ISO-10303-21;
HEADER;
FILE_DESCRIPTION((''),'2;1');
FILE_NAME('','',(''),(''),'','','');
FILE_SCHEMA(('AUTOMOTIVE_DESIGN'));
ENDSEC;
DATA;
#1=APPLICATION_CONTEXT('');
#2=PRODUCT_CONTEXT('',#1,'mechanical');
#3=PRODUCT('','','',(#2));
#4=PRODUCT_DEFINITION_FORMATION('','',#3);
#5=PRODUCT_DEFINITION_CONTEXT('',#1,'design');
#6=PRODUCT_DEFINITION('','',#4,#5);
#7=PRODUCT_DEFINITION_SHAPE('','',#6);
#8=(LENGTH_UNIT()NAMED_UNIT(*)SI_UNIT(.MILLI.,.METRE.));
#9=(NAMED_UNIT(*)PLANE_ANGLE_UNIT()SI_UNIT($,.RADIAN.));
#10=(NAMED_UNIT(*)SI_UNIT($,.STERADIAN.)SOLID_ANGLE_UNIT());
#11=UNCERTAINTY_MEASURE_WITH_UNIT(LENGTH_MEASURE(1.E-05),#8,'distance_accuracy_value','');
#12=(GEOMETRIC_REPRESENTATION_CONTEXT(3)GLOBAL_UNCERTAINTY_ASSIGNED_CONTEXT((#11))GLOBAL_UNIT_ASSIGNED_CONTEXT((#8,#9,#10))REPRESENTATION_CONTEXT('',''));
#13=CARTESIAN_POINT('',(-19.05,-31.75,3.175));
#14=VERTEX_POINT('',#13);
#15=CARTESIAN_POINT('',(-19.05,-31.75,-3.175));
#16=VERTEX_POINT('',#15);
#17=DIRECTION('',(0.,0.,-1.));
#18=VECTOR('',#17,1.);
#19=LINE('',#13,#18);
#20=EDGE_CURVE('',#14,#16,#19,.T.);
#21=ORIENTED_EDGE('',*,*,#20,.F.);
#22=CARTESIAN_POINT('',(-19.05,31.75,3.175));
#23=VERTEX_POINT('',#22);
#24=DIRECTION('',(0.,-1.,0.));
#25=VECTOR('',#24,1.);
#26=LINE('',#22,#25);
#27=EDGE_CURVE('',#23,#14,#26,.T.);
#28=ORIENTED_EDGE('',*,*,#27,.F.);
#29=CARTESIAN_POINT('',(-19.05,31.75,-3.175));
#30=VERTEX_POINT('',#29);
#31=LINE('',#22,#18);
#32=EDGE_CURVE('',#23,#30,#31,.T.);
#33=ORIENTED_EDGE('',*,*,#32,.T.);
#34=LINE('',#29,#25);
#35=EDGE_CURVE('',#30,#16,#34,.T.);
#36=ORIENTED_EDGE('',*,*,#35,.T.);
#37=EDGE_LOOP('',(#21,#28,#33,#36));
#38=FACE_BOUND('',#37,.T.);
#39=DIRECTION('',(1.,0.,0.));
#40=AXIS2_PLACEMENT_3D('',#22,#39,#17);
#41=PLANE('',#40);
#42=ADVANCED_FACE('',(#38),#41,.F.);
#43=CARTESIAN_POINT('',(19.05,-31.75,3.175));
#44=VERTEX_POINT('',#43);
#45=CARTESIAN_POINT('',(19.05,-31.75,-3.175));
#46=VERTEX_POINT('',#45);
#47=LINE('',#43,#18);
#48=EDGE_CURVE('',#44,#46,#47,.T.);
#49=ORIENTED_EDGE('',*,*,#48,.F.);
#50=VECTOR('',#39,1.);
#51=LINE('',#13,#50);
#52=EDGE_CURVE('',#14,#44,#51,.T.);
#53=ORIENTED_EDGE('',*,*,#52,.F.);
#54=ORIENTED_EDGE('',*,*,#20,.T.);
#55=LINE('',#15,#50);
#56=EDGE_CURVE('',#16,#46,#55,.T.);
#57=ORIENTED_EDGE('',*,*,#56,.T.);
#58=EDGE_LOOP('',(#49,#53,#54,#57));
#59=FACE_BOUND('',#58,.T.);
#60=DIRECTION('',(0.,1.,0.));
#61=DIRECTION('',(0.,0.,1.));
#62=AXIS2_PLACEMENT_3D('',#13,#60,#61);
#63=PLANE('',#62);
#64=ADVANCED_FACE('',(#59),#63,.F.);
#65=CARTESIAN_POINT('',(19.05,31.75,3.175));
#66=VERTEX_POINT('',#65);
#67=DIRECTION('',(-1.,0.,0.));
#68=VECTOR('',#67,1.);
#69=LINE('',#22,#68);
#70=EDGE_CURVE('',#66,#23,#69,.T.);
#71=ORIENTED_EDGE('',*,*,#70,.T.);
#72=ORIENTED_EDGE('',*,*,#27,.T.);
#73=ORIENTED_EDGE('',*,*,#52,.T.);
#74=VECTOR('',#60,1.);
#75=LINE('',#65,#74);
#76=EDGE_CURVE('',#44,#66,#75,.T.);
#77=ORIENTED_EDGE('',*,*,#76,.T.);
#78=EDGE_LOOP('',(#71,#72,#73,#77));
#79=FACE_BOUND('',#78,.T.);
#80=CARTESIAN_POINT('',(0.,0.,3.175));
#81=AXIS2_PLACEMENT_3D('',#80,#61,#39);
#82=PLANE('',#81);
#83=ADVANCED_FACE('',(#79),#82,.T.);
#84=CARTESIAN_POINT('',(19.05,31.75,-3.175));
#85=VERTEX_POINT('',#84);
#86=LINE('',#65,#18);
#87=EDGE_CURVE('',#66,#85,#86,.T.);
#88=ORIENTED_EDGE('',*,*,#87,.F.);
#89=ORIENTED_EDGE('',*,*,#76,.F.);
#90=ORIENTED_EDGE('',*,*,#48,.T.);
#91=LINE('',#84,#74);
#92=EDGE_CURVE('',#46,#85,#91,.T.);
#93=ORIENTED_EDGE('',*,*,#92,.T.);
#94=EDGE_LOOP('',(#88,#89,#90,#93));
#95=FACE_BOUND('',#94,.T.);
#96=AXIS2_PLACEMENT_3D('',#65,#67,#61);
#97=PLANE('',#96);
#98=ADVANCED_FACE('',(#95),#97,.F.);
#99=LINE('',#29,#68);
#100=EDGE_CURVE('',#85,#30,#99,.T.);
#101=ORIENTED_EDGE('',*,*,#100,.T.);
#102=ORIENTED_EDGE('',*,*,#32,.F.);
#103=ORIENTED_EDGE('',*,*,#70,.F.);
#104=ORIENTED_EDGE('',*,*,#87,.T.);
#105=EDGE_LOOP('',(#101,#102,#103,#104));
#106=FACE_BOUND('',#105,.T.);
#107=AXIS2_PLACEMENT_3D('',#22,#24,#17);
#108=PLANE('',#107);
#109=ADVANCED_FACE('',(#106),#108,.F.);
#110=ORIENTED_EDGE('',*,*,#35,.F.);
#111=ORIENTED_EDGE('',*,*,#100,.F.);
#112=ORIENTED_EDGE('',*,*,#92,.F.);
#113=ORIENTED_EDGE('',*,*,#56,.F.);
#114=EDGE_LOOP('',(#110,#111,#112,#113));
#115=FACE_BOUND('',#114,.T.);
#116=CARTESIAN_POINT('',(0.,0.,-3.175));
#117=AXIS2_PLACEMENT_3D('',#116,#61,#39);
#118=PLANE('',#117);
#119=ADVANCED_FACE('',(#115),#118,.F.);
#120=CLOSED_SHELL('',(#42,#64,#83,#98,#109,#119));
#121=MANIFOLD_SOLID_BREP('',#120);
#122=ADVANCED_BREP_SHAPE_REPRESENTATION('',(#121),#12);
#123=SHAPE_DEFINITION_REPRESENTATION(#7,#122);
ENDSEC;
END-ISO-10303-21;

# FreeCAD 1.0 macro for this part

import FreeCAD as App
import Part
import Sketcher
from FreeCAD import Vector
Q = App.Units.Quantity

doc = App.newDocument("Part")
body = doc.addObject("PartDesign::Body", "Body")

# Sketch on XY plane
sketch1 = body.newObject("Sketcher::SketchObject", "Sketch")
sketch1.AttachmentSupport = (doc.getObject("XY_Plane"), [""])
sketch1.MapMode = "FlatFace"
sketch1.addGeometry(Part.LineSegment(Vector(-19, 32, 0), Vector(-19, -32, 0)), False)
sketch1.addGeometry(Part.LineSegment(Vector(-19, -32, 0), Vector(19, -32, 0)), False)
sketch1.addGeometry(Part.LineSegment(Vector(19, -32, 0), Vector(19, 32, 0)), False)
sketch1.addGeometry(Part.LineSegment(Vector(19, 32, 0), Vector(-19, 32, 0)), False)
sketch1.addConstraint(Sketcher.Constraint("Coincident", 0, 2, 1, 1))
sketch1.addConstraint(Sketcher.Constraint("Coincident", 1, 2, 2, 1))
sketch1.addConstraint(Sketcher.Constraint("Coincident", 2, 2, 3, 1))
sketch1.addConstraint(Sketcher.Constraint("Coincident", 3, 2, 0, 1))
sketch1.addConstraint(Sketcher.Constraint("Vertical", 0))
sketch1.addConstraint(Sketcher.Constraint("Horizontal", 1))
sketch1.addConstraint(Sketcher.Constraint("Vertical", 2))
sketch1.addConstraint(Sketcher.Constraint("Horizontal", 3))
sketch1.addConstraint(Sketcher.Constraint("Symmetric", 0, 2, 2, 2, -1, 1))
sketch1.addConstraint(Sketcher.Constraint("DistanceX", 1, 1, 1, 2, Q("1.5 in")))
sketch1.addConstraint(Sketcher.Constraint("DistanceY", 0, 2, 0, 1, Q("2.5 in")))
pad1 = body.newObject("PartDesign::Pad", "Pad")
pad1.Profile = sketch1
pad1.Length = Q("0.25 in")
pad1.Midplane = True

doc.recompute()
